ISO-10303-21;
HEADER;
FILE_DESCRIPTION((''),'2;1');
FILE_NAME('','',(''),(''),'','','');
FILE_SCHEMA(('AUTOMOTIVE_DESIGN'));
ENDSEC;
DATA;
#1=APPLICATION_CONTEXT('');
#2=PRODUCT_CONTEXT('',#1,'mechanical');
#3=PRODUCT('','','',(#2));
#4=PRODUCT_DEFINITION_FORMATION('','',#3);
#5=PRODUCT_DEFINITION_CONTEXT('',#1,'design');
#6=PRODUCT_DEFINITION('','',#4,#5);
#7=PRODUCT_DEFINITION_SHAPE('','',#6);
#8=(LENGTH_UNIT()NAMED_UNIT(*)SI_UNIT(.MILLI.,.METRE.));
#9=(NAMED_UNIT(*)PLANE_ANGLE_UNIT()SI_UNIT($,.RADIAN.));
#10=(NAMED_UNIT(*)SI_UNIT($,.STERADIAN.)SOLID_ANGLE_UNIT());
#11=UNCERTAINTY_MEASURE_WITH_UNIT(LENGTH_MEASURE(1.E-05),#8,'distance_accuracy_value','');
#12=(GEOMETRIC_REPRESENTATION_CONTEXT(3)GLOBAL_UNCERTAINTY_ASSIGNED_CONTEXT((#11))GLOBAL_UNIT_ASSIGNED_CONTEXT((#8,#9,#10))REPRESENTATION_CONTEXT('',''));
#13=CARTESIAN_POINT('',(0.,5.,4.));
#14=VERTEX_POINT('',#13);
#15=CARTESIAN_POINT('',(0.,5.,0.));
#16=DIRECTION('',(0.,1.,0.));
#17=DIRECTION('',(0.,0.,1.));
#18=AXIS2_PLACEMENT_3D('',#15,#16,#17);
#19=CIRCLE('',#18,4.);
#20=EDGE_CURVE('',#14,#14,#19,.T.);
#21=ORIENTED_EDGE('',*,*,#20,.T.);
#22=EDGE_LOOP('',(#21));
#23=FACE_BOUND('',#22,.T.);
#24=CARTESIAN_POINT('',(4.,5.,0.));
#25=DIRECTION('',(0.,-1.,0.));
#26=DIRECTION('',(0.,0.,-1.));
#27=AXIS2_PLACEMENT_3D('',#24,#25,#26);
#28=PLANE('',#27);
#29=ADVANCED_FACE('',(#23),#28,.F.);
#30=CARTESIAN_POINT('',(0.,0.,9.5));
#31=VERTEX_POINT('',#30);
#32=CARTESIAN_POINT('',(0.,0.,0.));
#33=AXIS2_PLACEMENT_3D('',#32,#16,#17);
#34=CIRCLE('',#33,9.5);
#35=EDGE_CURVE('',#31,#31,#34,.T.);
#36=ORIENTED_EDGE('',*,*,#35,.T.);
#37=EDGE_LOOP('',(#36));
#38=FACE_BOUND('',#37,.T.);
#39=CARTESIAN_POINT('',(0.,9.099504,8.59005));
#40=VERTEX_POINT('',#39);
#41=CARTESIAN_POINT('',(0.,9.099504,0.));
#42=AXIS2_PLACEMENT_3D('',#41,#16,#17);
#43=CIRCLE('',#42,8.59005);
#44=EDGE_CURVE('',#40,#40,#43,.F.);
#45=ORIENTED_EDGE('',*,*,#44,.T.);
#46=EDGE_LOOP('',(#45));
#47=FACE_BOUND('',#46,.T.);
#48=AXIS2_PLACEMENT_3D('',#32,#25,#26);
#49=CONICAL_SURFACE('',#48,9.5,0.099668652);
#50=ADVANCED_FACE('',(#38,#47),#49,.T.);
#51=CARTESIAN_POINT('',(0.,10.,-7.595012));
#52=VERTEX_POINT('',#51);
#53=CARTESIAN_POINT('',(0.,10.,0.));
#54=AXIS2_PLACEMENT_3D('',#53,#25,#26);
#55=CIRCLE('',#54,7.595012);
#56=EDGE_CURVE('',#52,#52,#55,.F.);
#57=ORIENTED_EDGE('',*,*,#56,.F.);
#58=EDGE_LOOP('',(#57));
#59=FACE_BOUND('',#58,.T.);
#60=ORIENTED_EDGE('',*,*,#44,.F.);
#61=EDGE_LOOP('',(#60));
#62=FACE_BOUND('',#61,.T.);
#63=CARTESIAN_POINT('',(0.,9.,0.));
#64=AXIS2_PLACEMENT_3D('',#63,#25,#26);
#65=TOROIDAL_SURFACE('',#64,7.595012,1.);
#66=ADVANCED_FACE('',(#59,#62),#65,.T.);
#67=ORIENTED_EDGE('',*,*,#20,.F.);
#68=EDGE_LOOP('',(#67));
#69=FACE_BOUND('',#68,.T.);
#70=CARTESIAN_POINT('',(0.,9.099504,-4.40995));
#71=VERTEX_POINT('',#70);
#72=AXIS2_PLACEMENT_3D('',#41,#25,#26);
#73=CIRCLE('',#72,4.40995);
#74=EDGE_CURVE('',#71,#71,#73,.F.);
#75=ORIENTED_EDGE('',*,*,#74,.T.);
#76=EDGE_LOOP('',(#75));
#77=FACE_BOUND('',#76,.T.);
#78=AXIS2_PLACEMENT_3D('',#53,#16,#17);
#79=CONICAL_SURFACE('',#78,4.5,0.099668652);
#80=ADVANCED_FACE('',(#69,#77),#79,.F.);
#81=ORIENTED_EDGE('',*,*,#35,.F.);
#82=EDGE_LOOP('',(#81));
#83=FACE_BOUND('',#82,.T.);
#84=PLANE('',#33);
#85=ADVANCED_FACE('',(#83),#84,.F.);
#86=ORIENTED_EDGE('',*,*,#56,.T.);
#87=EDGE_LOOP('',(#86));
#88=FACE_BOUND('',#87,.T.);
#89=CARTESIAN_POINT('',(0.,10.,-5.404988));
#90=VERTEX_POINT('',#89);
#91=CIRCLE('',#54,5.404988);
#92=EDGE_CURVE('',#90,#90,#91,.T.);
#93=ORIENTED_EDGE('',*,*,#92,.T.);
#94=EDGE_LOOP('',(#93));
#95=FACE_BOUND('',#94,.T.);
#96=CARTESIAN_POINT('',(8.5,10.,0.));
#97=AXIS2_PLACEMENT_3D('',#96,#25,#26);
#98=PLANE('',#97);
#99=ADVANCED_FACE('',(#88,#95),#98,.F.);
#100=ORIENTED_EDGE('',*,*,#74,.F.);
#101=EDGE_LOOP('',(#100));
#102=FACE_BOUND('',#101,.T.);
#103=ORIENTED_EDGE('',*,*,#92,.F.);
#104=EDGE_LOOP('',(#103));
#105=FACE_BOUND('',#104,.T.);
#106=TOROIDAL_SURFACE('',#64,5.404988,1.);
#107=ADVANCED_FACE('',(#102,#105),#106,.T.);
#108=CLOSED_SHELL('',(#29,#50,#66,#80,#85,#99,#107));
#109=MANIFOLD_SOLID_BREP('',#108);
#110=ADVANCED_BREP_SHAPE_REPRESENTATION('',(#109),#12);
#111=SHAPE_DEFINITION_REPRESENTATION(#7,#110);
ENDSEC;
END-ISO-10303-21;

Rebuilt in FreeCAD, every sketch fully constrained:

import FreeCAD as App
import Part
import Sketcher
from FreeCAD import Vector
Q = App.Units.Quantity


def edges_at(feature, points):
    """Names of the edges that pass closest to the given points."""
    edges = feature.Shape.Edges
    near = lambda p: min(range(len(edges)), key=lambda i: edges[i].distToShape(Part.Vertex(*p))[0])
    return sorted({f"Edge{near(p) + 1}" for p in points})


def add_polygon(sketch, points):
    """Adds a closed chain of lines whose ends are joined by coincident constraints."""
    first, n = sketch.GeometryCount, len(points)
    for a, b in zip(points, points[1:] + points[:1]):
        sketch.addGeometry(Part.LineSegment(App.Vector(*a, 0), App.Vector(*b, 0)), False)
    for i in range(n):
        sketch.addConstraint(Sketcher.Constraint("Coincident", first + i, 2, first + (i + 1) % n, 1))

doc = App.newDocument("Part")
body = doc.addObject("PartDesign::Body", "Body")

# Sketch on XY plane
sketch1 = body.newObject("Sketcher::SketchObject", "Sketch")
sketch1.AttachmentSupport = (doc.getObject("XY_Plane"), [""])
sketch1.MapMode = "FlatFace"
add_polygon(sketch1, [(0, 0), (9.5, 0), (8.5, 10), (4.5, 10), (4, 5), (0, 5)])  # lines 0-5
sketch1.addConstraint(Sketcher.Constraint("Horizontal", 0))
sketch1.addConstraint(Sketcher.Constraint("Horizontal", 2))
sketch1.addConstraint(Sketcher.Constraint("Horizontal", 4))
sketch1.addConstraint(Sketcher.Constraint("Vertical", 5))
sketch1.addConstraint(Sketcher.Constraint("Coincident", 5, 2, -1, 1))
sketch1.addConstraint(Sketcher.Constraint("Equal", 2, 4))
sketch1.addConstraint(Sketcher.Constraint("DistanceX", 2, 2, 2, 1, Q("4 mm")))
sketch1.addConstraint(Sketcher.Constraint("DistanceY", 5, 2, 5, 1, Q("5 mm")))
sketch1.addConstraint(Sketcher.Constraint("DistanceX", 0, 1, 0, 2, Q("9.5 mm")))
sketch1.addConstraint(Sketcher.Constraint("DistanceY", -1, 1, 1, 2, Q("10 mm")))
sketch1.addConstraint(Sketcher.Constraint("DistanceX", 1, 2, 0, 2, Q("1 mm")))
revolution = body.newObject("PartDesign::Revolution", "Revolution")
revolution.Profile = sketch1
revolution.ReferenceAxis = (sketch1, ["V_Axis"])
revolution.Angle = 360
doc.recompute()

fillet = body.newObject("PartDesign::Fillet", "Fillet")
fillet.Base = (revolution, edges_at(revolution, [(0, 10, -4.5), (0, 10, -8.5)]))
fillet.Radius = 1

doc.recompute()
